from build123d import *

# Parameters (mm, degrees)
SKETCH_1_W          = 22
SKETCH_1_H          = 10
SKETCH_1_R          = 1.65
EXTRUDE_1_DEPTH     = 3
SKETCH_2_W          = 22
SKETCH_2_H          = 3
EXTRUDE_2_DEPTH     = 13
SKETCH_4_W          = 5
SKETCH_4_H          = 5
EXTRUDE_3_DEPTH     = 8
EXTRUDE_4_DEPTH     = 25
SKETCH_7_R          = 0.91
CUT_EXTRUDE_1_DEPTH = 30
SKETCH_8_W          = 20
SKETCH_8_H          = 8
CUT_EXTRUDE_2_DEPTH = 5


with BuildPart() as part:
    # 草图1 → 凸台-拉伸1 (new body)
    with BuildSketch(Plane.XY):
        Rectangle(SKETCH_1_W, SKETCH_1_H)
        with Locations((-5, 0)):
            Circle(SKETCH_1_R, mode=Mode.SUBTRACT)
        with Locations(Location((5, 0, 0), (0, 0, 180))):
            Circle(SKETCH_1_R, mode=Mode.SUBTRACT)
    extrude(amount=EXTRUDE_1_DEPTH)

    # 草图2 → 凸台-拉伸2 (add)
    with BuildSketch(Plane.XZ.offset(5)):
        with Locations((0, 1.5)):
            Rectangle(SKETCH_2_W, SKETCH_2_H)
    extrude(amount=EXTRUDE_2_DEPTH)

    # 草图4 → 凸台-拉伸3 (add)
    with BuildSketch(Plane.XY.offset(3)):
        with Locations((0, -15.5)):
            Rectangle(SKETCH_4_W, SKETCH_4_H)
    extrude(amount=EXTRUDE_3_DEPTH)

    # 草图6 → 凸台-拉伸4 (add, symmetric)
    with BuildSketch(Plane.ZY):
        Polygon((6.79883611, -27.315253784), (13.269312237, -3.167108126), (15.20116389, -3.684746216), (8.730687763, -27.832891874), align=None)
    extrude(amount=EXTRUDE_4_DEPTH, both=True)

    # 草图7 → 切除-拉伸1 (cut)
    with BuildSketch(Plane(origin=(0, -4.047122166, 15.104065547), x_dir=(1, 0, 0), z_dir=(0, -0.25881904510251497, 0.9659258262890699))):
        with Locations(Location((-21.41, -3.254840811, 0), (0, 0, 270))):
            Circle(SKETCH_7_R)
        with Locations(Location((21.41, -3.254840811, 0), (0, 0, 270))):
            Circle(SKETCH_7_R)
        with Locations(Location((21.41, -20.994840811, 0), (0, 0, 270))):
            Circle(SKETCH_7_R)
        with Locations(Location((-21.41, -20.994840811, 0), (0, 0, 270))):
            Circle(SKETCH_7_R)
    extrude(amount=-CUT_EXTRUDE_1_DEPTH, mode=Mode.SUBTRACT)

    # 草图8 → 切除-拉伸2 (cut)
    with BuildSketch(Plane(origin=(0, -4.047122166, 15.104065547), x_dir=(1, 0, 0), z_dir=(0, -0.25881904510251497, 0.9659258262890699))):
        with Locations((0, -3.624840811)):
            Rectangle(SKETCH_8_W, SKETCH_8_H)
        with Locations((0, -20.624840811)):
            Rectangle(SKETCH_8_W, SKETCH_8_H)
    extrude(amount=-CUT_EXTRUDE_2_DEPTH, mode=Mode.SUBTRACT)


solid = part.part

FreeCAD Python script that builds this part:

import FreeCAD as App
import Part
import Sketcher

V = App.Vector
Q = App.Units.Quantity


def add_polygon(sketch, points):
    """Adds a closed chain of lines whose ends are joined by coincident constraints."""
    first, n = sketch.GeometryCount, len(points)
    for a, b in zip(points, points[1:] + points[:1]):
        sketch.addGeometry(Part.LineSegment(App.Vector(*a, 0), App.Vector(*b, 0)), False)
    for i in range(n):
        sketch.addConstraint(Sketcher.Constraint("Coincident", first + i, 2, first + (i + 1) % n, 1))

doc = App.newDocument("Part")
body = doc.addObject("PartDesign::Body", "Body")

sketch1 = body.newObject("Sketcher::SketchObject", "Sketch")
sketch1.AttachmentSupport = (doc.getObject("XY_Plane"), [""])
sketch1.MapMode = "FlatFace"
add_polygon(sketch1, [(-11, 5), (-11, -5), (11, -5), (11, 5)])
sketch1.addGeometry(Part.Circle(V(-5, 0, 0), V(0, 0, 1), 1.6), False)
sketch1.addGeometry(Part.Circle(V(5, 0, 0), V(0, 0, 1), 1.6), False)
sketch1.addConstraint(Sketcher.Constraint("Vertical", 0))
sketch1.addConstraint(Sketcher.Constraint("Horizontal", 1))
sketch1.addConstraint(Sketcher.Constraint("Vertical", 2))
sketch1.addConstraint(Sketcher.Constraint("Horizontal", 3))
sketch1.addConstraint(Sketcher.Constraint("Equal", 4, 5))
sketch1.addConstraint(Sketcher.Constraint("Symmetric", 4, 3, 5, 3, -1, 1))
sketch1.addConstraint(Sketcher.Constraint("Symmetric", 0, 2, 2, 2, -1, 1))
sketch1.addConstraint(Sketcher.Constraint("PointOnObject", 4, 3, -1))
sketch1.addConstraint(Sketcher.Constraint("Diameter", 4, Q("3.3 mm")))
sketch1.addConstraint(Sketcher.Constraint("DistanceX", 1, 1, 1, 2, Q("22 mm")))
sketch1.addConstraint(Sketcher.Constraint("DistanceY", 0, 2, 0, 1, Q("10 mm")))
sketch1.addConstraint(Sketcher.Constraint("DistanceX", 4, 3, -1, 1, Q("5 mm")))
pad1 = body.newObject("PartDesign::Pad", "Pad")
pad1.Profile = sketch1
pad1.Length = 3

sketch2 = body.newObject("Sketcher::SketchObject", "Sketch001")
sketch2.AttachmentSupport = (doc.getObject("XZ_Plane"), [""])
sketch2.MapMode = "FlatFace"
sketch2.AttachmentOffset = App.Placement(V(0, 0, 5), App.Rotation())
add_polygon(sketch2, [(-11, 3), (-11, 0), (11, 0), (11, 3)])
sketch2.addConstraint(Sketcher.Constraint("Vertical", 0))
sketch2.addConstraint(Sketcher.Constraint("Horizontal", 1))
sketch2.addConstraint(Sketcher.Constraint("Vertical", 2))
sketch2.addConstraint(Sketcher.Constraint("Horizontal", 3))
sketch2.addConstraint(Sketcher.Constraint("Symmetric", 0, 2, 1, 2, -1, 1))
sketch2.addConstraint(Sketcher.Constraint("DistanceX", 1, 1, 1, 2, Q("22 mm")))
sketch2.addConstraint(Sketcher.Constraint("DistanceY", 0, 2, 0, 1, Q("3 mm")))
pad2 = body.newObject("PartDesign::Pad", "Pad001")
pad2.Profile = sketch2
pad2.Length = 13

sketch3 = body.newObject("Sketcher::SketchObject", "Sketch002")
sketch3.AttachmentSupport = (doc.getObject("XY_Plane"), [""])
sketch3.MapMode = "FlatFace"
sketch3.AttachmentOffset = App.Placement(V(0, 0, 3), App.Rotation())
add_polygon(sketch3, [(-2, -13), (-2, -18), (2, -18), (2, -13)])
sketch3.addConstraint(Sketcher.Constraint("Vertical", 0))
sketch3.addConstraint(Sketcher.Constraint("Horizontal", 1))
sketch3.addConstraint(Sketcher.Constraint("Vertical", 2))
sketch3.addConstraint(Sketcher.Constraint("Horizontal", 3))
sketch3.addConstraint(Sketcher.Constraint("Equal", 3, 0))
sketch3.addConstraint(Sketcher.Constraint("DistanceX", 1, 1, 1, 2, Q("5 mm")))
sketch3.addConstraint(Sketcher.Constraint("DistanceY", 0, 2, -1, 1, Q("18 mm")))
sketch3.addConstraint(Sketcher.Constraint("DistanceX", 0, 2, -1, 1, Q("2.5 mm")))
pad3 = body.newObject("PartDesign::Pad", "Pad002")
pad3.Profile = sketch3
pad3.Length = 8

sketch4 = body.newObject("Sketcher::SketchObject", "Sketch003")
sketch4.AttachmentSupport = (doc.getObject("YZ_Plane"), [""])
sketch4.MapMode = "FlatFace"
add_polygon(sketch4, [(-3.2, 13.3), (-27.3, 6.8), (-27.8, 8.7), (-3.7, 15.2)])
sketch4.addConstraint(Sketcher.Constraint("Perpendicular", 0, 1))
sketch4.addConstraint(Sketcher.Constraint("Perpendicular", 1, 2))
sketch4.addConstraint(Sketcher.Constraint("Perpendicular", 2, 3))
sketch4.addConstraint(Sketcher.Constraint("Angle", 0, Q("-165 deg")))
sketch4.addConstraint(Sketcher.Constraint("Distance", 0, Q("25 mm")))
sketch4.addConstraint(Sketcher.Constraint("Distance", 1, Q("2 mm")))
sketch4.addConstraint(Sketcher.Constraint("DistanceX", 1, 2, -1, 1, Q("27.832892 mm")))
sketch4.addConstraint(Sketcher.Constraint("DistanceY", -1, 1, 0, 2, Q("6.798836 mm")))
pad4 = body.newObject("PartDesign::Pad", "Pad003")
pad4.Profile = sketch4
pad4.Length = 50
pad4.Midplane = True

sketch5 = body.newObject("Sketcher::SketchObject", "Sketch004")
sketch5.Placement = App.Placement(V(0, -4.047122, 15.104066), App.Rotation(V(1, 0, 0), V(0, 0.965925826, 0.258819045), V(0, -0.258819045, 0.965925826), "ZXY"))
sketch5.addGeometry(Part.Circle(V(-21.4, -3.3, 0), V(0, 0, 1), 0.9), False)
sketch5.addGeometry(Part.Circle(V(21.4, -3.3, 0), V(0, 0, 1), 0.9), False)
sketch5.addGeometry(Part.Circle(V(21.4, -21, 0), V(0, 0, 1), 0.9), False)
sketch5.addGeometry(Part.Circle(V(-21.4, -21, 0), V(0, 0, 1), 0.9), False)
sketch5.addConstraint(Sketcher.Constraint("Equal", 0, 1))
sketch5.addConstraint(Sketcher.Constraint("Equal", 1, 2))
sketch5.addConstraint(Sketcher.Constraint("Equal", 2, 3))
sketch5.addConstraint(Sketcher.Constraint("Symmetric", 0, 3, 1, 3, -2))
sketch5.addConstraint(Sketcher.Constraint("Symmetric", 2, 3, 3, 3, -2))
sketch5.addConstraint(Sketcher.Constraint("Vertical", 1, 3, 2, 3))
sketch5.addConstraint(Sketcher.Constraint("Diameter", 0, Q("1.82 mm")))
sketch5.addConstraint(Sketcher.Constraint("DistanceX", 0, 3, -1, 1, Q("21.41 mm")))
sketch5.addConstraint(Sketcher.Constraint("DistanceY", 2, 3, 1, 3, Q("17.74 mm")))
sketch5.addConstraint(Sketcher.Constraint("DistanceY", 0, 3, -1, 1, Q("3.254841 mm")))
pocket1 = body.newObject("PartDesign::Pocket", "Pocket")
pocket1.Profile = sketch5
pocket1.Length = 30

sketch6 = body.newObject("Sketcher::SketchObject", "Sketch005")
sketch6.Placement = App.Placement(V(0, -4.047122, 15.104066), App.Rotation(V(1, 0, 0), V(0, 0.965925826, 0.258819045), V(0, -0.258819045, 0.965925826), "ZXY"))
add_polygon(sketch6, [(-10, 0), (-10, -8), (10, -8), (10, 0)])
add_polygon(sketch6, [(-10, -17), (-10, -25), (10, -25), (10, -17)])
sketch6.addConstraint(Sketcher.Constraint("Vertical", 0))
sketch6.addConstraint(Sketcher.Constraint("Horizontal", 1))
sketch6.addConstraint(Sketcher.Constraint("Vertical", 2))
sketch6.addConstraint(Sketcher.Constraint("Horizontal", 3))
sketch6.addConstraint(Sketcher.Constraint("Vertical", 4))
sketch6.addConstraint(Sketcher.Constraint("Horizontal", 5))
sketch6.addConstraint(Sketcher.Constraint("Vertical", 6))
sketch6.addConstraint(Sketcher.Constraint("Horizontal", 7))
sketch6.addConstraint(Sketcher.Constraint("Vertical", 3, 2, 4, 2))
sketch6.addConstraint(Sketcher.Constraint("Vertical", 2, 2, 5, 2))
sketch6.addConstraint(Sketcher.Constraint("Equal", 2, 4))
sketch6.addConstraint(Sketcher.Constraint("DistanceX", 1, 1, 1, 2, Q("20 mm")))
sketch6.addConstraint(Sketcher.Constraint("DistanceY", 0, 2, 0, 1, Q("8 mm")))
sketch6.addConstraint(Sketcher.Constraint("DistanceX", 0, 2, -1, 1, Q("10 mm")))
sketch6.addConstraint(Sketcher.Constraint("DistanceY", 4, 2, 0, 2, Q("17 mm")))
sketch6.addConstraint(Sketcher.Constraint("DistanceY", 0, 2, -1, 1, Q("7.624841 mm")))
pocket2 = body.newObject("PartDesign::Pocket", "Pocket001")
pocket2.Profile = sketch6
pocket2.Length = 5

doc.recompute()
